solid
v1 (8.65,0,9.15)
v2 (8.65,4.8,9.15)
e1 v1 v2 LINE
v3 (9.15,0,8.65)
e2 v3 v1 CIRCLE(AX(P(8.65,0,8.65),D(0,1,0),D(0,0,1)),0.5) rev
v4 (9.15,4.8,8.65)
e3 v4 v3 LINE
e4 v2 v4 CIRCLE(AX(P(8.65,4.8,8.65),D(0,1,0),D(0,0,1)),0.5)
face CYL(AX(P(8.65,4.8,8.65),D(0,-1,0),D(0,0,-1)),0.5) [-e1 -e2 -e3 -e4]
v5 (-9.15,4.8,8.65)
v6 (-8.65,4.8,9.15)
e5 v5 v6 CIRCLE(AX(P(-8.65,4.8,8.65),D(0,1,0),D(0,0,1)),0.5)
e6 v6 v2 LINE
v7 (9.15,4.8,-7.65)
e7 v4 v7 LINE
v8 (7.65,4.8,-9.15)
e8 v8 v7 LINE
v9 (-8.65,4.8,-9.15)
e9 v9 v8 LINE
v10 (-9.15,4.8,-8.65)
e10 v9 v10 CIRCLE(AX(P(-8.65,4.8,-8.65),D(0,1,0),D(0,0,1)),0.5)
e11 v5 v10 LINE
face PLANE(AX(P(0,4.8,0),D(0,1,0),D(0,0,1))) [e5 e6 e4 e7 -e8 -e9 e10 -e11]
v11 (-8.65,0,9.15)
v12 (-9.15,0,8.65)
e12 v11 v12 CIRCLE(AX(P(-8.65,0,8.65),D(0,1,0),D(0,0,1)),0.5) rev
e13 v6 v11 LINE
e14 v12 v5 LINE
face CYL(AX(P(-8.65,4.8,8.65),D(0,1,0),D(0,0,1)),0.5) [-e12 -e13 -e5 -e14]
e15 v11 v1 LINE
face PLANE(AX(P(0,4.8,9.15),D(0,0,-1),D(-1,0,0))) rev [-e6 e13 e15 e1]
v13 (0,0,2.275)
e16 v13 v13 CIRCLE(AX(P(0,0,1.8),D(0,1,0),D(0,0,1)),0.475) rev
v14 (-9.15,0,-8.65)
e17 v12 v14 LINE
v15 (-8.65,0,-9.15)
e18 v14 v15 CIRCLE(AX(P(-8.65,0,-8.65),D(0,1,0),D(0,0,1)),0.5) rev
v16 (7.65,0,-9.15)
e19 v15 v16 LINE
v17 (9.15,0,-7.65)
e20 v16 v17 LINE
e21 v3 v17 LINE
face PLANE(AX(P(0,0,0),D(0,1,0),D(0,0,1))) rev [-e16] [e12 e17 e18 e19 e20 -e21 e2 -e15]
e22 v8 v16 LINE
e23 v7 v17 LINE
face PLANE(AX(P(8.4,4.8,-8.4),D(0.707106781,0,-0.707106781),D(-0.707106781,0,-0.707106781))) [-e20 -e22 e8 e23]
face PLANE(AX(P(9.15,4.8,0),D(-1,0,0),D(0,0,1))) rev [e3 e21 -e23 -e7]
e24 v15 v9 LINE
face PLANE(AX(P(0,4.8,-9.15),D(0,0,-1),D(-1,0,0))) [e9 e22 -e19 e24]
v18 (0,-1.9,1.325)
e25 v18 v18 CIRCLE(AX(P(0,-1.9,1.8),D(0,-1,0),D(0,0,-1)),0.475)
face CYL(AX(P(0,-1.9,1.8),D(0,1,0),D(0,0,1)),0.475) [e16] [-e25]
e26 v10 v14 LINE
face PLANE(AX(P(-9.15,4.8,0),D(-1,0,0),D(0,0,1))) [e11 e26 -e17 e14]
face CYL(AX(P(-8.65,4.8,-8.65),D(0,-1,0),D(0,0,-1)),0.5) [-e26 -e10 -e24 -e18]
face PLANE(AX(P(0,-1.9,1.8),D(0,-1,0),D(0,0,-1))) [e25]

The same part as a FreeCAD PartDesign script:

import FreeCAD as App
import Part
import Sketcher
Q = App.Units.Quantity


def edges_at(feature, points):
    """Names of the edges that pass closest to the given points."""
    edges = feature.Shape.Edges
    near = lambda p: min(range(len(edges)), key=lambda i: edges[i].distToShape(Part.Vertex(*p))[0])
    return sorted({f"Edge{near(p) + 1}" for p in points})


def add_polygon(sketch, points):
    """Adds a closed chain of lines whose ends are joined by coincident constraints."""
    first, n = sketch.GeometryCount, len(points)
    for a, b in zip(points, points[1:] + points[:1]):
        sketch.addGeometry(Part.LineSegment(App.Vector(*a, 0), App.Vector(*b, 0)), False)
    for i in range(n):
        sketch.addConstraint(Sketcher.Constraint("Coincident", first + i, 2, first + (i + 1) % n, 1))

doc = App.newDocument("Part")
params = doc.addObject("Spreadsheet::Sheet", "Params")
for row, (alias, value) in enumerate([
    ("sketch1_width", "16.8 mm"),
    ("sketch1_width2", "18.3 mm"),
    ("pad1_length", "4.8 mm"),
    ("fillet_radius", "0.5 mm"),
    ("sketch2_diameter", "0.95 mm"),
    ("pad2_length", "1.9 mm"),
], start=1):
    params.set(f"A{row}", alias)
    params.set(f"B{row}", "=" + value)
    params.setAlias(f"B{row}", alias)

body = doc.addObject("PartDesign::Body", "Body")

sketch1 = doc.addObject("Sketcher::SketchObject", "Sketch")
body.addObject(sketch1)
sketch1.AttachmentSupport = (doc.XZ_Plane, [""])
sketch1.MapMode = "FlatFace"
add_polygon(sketch1, [(9.2, -7.7), (7.7, -9.2), (-9.2, -9.2), (-9.2, 9.2), (9.2, 9.2)])
sketch1.addConstraint(Sketcher.Constraint("Horizontal", 1))
sketch1.addConstraint(Sketcher.Constraint("Vertical", 2))
sketch1.addConstraint(Sketcher.Constraint("Horizontal", 3))
sketch1.addConstraint(Sketcher.Constraint("Vertical", 4))
sketch1.addConstraint(Sketcher.Constraint("Symmetric", 1, 2, 3, 2, -1, 1))
sketch1.addConstraint(Sketcher.Constraint("Equal", 3, 2))
sketch1.addConstraint(Sketcher.Constraint("Equal", 1, 4))
sketch1.addConstraint(Sketcher.Constraint("DistanceX", 1, 2, 1, 1, Q("16.8 mm")))
sketch1.addConstraint(Sketcher.Constraint("DistanceX", 3, 1, 3, 2, Q("18.3 mm")))
sketch1.setExpression("Constraints[12]", "Params.sketch1_width")
sketch1.setExpression("Constraints[13]", "Params.sketch1_width2")
pad1 = doc.addObject("PartDesign::Pad", "Pad")
body.addObject(pad1)
pad1.Profile = sketch1
pad1.setExpression("Length", "Params.pad1_length")
pad1.Reversed = True
doc.recompute()

fillet = doc.addObject("PartDesign::Fillet", "Fillet")
body.addObject(fillet)
fillet.Base = (pad1, edges_at(pad1, [(-9.15, 2.4, 9.15), (-9.15, 2.4, -9.15), (9.15, 2.4, 9.15)]))
fillet.setExpression("Radius", "Params.fillet_radius")

sketch2 = doc.addObject("Sketcher::SketchObject", "Sketch001")
body.addObject(sketch2)
sketch2.AttachmentSupport = (doc.XZ_Plane, [""])
sketch2.MapMode = "FlatFace"
sketch2.addGeometry(Part.Circle(App.Vector(0, 1.8, 0), App.Vector(0, 0, 1), 0.47), False)
sketch2.addConstraint(Sketcher.Constraint("PointOnObject", 0, 3, -2))
sketch2.addConstraint(Sketcher.Constraint("Diameter", 0, Q("0.95 mm")))
sketch2.addConstraint(Sketcher.Constraint("DistanceY", -1, 1, 0, 3, Q("1.8 mm")))
sketch2.setExpression("Constraints[1]", "Params.sketch2_diameter")
pad2 = doc.addObject("PartDesign::Pad", "Pad001")
body.addObject(pad2)
pad2.Profile = sketch2
pad2.setExpression("Length", "Params.pad2_length")

doc.recompute()
